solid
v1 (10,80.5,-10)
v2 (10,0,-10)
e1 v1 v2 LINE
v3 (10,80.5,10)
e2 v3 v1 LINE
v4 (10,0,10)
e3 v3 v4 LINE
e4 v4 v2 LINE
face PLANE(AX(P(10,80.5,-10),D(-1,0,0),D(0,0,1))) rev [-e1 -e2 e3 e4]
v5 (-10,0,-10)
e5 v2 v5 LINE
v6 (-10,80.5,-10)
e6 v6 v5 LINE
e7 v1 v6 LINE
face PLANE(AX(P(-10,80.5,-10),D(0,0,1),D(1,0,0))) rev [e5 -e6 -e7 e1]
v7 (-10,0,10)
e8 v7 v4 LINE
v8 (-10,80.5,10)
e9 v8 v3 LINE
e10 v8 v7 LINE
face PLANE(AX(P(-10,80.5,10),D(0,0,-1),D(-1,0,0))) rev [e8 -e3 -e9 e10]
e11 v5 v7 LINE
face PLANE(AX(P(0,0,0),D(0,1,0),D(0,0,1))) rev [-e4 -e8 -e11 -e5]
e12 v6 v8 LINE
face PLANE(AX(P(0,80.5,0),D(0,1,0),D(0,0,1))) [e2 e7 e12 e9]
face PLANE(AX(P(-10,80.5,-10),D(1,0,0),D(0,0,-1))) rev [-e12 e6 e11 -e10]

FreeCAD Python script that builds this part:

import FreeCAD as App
import Part
import Sketcher
from FreeCAD import Vector

doc = App.newDocument("Part")
params = doc.addObject("Spreadsheet::Sheet", "Params")
for row, (alias, value) in enumerate([
    ("sketch1_width", "20 mm"),
    ("pad1_length", "80.5 mm"),
], start=1):
    params.set(f"A{row}", alias)
    params.set(f"B{row}", "=" + value)
    params.setAlias(f"B{row}", alias)

body = doc.addObject("PartDesign::Body", "Body")

sketch1 = doc.addObject("Sketcher::SketchObject", "Sketch")
body.addObject(sketch1)
sketch1.AttachmentSupport = (doc.XZ_Plane, [""])
sketch1.MapMode = "FlatFace"
sketch1.addGeometry([
    Part.LineSegment(Vector(-10, -10, 0), Vector(-10, 10, 0)),
    Part.LineSegment(Vector(-10, 10, 0), Vector(10, 10, 0)),
    Part.LineSegment(Vector(10, 10, 0), Vector(10, -10, 0)),
    Part.LineSegment(Vector(10, -10, 0), Vector(-10, -10, 0)),
], False)
sketch1.addConstraint([
    Sketcher.Constraint("Coincident", 0, 2, 1, 1),
    Sketcher.Constraint("Coincident", 1, 2, 2, 1),
    Sketcher.Constraint("Coincident", 2, 2, 3, 1),
    Sketcher.Constraint("Coincident", 3, 2, 0, 1),
    Sketcher.Constraint("Vertical", 0),
    Sketcher.Constraint("Horizontal", 1),
    Sketcher.Constraint("Vertical", 2),
    Sketcher.Constraint("Horizontal", 3),
    Sketcher.Constraint("Symmetric", 0, 2, 2, 2, -1, 1),
    Sketcher.Constraint("Equal", 3, 0),
    Sketcher.Constraint("DistanceX", 1, 1, 1, 2, 20.0),
])
sketch1.setExpression("Constraints[10]", "Params.sketch1_width")
pad1 = doc.addObject("PartDesign::Pad", "Pad")
body.addObject(pad1)
pad1.Profile = sketch1
pad1.setExpression("Length", "Params.pad1_length")
pad1.Reversed = True

doc.recompute()
